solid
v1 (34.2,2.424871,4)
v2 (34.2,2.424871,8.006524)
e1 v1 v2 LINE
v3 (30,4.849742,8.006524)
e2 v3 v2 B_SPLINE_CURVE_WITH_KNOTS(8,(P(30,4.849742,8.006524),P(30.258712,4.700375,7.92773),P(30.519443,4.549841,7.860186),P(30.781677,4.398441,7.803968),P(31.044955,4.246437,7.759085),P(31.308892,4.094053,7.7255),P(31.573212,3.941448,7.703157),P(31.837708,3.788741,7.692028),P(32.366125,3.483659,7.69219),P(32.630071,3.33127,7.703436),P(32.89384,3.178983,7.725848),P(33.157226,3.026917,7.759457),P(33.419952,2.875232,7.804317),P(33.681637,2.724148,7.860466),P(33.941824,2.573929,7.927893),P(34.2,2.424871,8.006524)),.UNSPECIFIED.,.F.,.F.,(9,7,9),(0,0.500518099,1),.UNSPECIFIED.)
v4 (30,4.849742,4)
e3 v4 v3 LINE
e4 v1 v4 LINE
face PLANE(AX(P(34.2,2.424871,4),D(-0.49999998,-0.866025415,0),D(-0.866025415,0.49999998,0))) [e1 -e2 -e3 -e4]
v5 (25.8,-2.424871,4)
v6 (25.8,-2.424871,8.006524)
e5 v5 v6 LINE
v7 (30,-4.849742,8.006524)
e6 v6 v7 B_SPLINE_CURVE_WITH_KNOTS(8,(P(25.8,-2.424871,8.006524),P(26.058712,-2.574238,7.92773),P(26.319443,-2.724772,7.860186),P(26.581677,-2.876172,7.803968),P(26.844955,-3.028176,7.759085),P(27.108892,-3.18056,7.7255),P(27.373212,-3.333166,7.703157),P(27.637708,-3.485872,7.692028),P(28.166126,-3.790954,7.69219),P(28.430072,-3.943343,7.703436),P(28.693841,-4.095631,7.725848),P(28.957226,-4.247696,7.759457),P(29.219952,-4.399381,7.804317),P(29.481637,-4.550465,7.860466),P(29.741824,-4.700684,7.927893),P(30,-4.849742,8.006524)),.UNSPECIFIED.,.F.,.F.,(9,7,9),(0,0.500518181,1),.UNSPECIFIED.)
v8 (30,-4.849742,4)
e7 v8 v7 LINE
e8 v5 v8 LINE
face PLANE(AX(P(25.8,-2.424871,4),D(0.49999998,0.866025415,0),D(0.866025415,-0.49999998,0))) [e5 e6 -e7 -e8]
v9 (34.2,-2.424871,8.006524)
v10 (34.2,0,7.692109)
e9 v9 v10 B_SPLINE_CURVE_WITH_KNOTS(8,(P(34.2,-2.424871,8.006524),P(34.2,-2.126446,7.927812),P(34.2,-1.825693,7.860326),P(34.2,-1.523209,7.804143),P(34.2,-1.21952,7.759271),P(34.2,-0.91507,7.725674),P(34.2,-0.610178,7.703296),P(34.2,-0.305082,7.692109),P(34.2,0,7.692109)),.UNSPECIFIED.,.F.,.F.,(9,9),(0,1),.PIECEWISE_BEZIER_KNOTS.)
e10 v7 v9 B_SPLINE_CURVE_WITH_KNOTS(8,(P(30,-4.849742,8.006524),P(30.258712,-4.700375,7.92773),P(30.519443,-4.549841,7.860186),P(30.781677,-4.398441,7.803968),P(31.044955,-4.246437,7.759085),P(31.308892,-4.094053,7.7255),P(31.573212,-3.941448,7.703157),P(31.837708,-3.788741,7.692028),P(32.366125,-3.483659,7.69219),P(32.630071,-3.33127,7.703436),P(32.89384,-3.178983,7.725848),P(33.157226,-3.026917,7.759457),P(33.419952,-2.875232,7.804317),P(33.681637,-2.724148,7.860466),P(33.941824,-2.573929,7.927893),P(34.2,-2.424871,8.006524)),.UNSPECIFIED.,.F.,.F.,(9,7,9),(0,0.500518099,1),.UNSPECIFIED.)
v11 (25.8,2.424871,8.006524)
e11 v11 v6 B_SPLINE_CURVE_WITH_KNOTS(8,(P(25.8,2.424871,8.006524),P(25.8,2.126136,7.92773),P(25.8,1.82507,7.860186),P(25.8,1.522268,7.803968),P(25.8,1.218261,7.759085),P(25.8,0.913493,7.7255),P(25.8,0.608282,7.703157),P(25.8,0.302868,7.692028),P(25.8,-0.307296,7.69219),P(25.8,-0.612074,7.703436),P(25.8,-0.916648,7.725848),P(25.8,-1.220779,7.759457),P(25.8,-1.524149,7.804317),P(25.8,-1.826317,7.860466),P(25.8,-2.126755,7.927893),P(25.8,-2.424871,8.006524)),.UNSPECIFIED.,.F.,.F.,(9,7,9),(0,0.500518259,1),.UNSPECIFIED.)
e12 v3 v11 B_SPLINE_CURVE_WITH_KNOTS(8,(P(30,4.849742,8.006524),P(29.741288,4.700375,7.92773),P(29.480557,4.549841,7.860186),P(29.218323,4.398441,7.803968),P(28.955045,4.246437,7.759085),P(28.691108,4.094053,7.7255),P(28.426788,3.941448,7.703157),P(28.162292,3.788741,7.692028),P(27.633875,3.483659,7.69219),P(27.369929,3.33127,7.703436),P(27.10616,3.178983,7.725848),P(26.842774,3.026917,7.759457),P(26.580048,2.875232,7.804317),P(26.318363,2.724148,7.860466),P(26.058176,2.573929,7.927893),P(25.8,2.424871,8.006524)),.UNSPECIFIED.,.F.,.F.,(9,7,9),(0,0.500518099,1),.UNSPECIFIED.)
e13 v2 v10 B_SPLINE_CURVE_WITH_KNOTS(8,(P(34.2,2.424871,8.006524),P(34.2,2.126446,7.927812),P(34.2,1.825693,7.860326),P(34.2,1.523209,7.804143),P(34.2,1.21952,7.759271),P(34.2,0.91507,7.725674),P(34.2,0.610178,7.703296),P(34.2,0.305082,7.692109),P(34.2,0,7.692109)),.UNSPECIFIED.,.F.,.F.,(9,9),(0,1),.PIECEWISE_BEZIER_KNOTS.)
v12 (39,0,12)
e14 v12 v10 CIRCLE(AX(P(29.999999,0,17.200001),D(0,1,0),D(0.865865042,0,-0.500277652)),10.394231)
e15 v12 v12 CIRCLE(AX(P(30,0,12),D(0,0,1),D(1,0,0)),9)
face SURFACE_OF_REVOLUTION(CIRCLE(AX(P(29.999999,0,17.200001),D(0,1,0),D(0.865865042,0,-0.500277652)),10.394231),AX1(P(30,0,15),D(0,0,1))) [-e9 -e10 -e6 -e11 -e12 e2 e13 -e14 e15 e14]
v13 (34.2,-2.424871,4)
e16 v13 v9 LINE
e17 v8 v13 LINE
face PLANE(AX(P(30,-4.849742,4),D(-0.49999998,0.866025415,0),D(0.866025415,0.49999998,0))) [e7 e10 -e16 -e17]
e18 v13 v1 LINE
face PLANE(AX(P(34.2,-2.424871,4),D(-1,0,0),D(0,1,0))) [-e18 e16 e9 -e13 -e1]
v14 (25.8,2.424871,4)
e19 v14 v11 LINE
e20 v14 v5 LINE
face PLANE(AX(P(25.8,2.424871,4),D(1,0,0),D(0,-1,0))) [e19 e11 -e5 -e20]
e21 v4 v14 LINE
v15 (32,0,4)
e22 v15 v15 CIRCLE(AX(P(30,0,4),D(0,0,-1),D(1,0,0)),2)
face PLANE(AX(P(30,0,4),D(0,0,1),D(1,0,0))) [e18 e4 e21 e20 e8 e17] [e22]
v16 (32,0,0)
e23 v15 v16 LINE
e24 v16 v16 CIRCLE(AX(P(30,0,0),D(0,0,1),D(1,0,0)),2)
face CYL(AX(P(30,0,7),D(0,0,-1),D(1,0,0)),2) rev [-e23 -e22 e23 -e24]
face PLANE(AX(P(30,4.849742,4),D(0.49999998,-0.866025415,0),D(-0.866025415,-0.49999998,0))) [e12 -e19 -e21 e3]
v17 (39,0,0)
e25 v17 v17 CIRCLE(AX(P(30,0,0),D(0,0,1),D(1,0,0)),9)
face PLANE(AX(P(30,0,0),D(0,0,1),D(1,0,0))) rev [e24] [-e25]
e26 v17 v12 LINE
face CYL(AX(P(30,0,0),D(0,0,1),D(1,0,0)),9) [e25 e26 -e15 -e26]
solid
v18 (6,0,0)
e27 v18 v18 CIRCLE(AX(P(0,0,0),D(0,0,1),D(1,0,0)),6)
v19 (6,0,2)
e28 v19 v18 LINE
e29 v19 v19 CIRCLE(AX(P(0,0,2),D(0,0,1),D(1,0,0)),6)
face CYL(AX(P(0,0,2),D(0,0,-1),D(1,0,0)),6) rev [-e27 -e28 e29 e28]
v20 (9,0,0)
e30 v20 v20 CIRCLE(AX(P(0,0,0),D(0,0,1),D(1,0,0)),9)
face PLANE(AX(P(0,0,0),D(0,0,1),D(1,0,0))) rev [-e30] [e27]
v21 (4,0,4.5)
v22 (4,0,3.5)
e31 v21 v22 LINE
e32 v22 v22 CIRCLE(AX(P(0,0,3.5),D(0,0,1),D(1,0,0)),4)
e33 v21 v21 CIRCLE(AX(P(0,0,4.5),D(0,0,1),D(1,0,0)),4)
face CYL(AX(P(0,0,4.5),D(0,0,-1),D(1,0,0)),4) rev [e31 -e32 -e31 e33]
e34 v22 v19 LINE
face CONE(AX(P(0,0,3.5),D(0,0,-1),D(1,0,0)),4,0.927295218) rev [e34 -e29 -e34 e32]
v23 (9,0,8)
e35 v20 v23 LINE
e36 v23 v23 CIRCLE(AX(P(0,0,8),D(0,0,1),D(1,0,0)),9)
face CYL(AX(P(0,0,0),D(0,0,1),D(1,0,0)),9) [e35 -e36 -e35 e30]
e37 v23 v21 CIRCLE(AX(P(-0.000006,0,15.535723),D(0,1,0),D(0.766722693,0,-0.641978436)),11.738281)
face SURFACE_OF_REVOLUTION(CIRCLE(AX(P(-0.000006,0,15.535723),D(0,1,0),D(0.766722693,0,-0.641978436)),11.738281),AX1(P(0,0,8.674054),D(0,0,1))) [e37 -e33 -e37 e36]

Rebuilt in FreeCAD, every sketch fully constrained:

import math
import FreeCAD as App
import Part
import Sketcher
Q = App.Units.Quantity


def add_polygon(sketch, points):
    """Adds a closed chain of lines whose ends are joined by coincident constraints."""
    first, n = sketch.GeometryCount, len(points)
    for a, b in zip(points, points[1:] + points[:1]):
        sketch.addGeometry(Part.LineSegment(App.Vector(*a, 0), App.Vector(*b, 0)), False)
    for i in range(n):
        sketch.addConstraint(Sketcher.Constraint("Coincident", first + i, 2, first + (i + 1) % n, 1))

doc = App.newDocument("Part")
body = doc.addObject("PartDesign::Body", "Body")

sketch1 = body.newObject("Sketcher::SketchObject", "Sketch")
sketch1.AttachmentSupport = (doc.getObject("XZ_Plane"), [""])
sketch1.MapMode = "FlatFace"
sketch1.addGeometry([
    Part.LineSegment(App.Vector(6, 2, 0), App.Vector(6, 0, 0)),
    Part.LineSegment(App.Vector(6, 0, 0), App.Vector(9, 0, 0)),
    Part.LineSegment(App.Vector(9, 0, 0), App.Vector(9, 8, 0)),
    Part.ArcOfCircle(Part.Circle(App.Vector(0, 15.5, 0), App.Vector(0, 0, 1), 11.7), math.radians(-70), math.radians(-40)),
    Part.LineSegment(App.Vector(4, 4.5, 0), App.Vector(4, 3.5, 0)),
    Part.LineSegment(App.Vector(4, 3.5, 0), App.Vector(6, 2, 0)),
], False)
sketch1.addConstraint([
    Sketcher.Constraint("Coincident", 0, 2, 1, 1),
    Sketcher.Constraint("Coincident", 1, 2, 2, 1),
    Sketcher.Constraint("Coincident", 2, 2, 3, 2),
    Sketcher.Constraint("Coincident", 3, 1, 4, 1),
    Sketcher.Constraint("Coincident", 4, 2, 5, 1),
    Sketcher.Constraint("Coincident", 5, 2, 0, 1),
    Sketcher.Constraint("Vertical", 0),
    Sketcher.Constraint("Horizontal", 1),
    Sketcher.Constraint("Vertical", 2),
    Sketcher.Constraint("Vertical", 4),
    Sketcher.Constraint("PointOnObject", 0, 2, -1),
    Sketcher.Constraint("DistanceX", 1, 1, 1, 2, Q("3 mm")),
    Sketcher.Constraint("DistanceY", 0, 2, 0, 1, Q("2 mm")),
    Sketcher.Constraint("DistanceY", 2, 1, 2, 2, Q("8 mm")),
    Sketcher.Constraint("DistanceY", 4, 2, 4, 1, Q("1 mm")),
    Sketcher.Constraint("DistanceX", -1, 1, 0, 2, Q("6 mm")),
    Sketcher.Constraint("DistanceX", -1, 1, 3, 1, Q("4 mm")),
    Sketcher.Constraint("Distance", 5, Q("2.5 mm")),
    Sketcher.Constraint("Radius", 3, Q("11.738281 mm")),
])
revolution = body.newObject("PartDesign::Revolution", "Revolution")
revolution.Profile = sketch1
revolution.ReferenceAxis = (sketch1, ["V_Axis"])
revolution.Angle = 360
body2 = doc.addObject("PartDesign::Body", "Body001")

sketch2 = body2.newObject("Sketcher::SketchObject", "Sketch001")
sketch2.AttachmentSupport = (doc.getObject("XZ_Plane001"), [""])
sketch2.MapMode = "FlatFace"
sketch2.addGeometry([
    Part.LineSegment(App.Vector(32, 7, 0), App.Vector(32, 0, 0)),
    Part.LineSegment(App.Vector(32, 0, 0), App.Vector(39, 0, 0)),
    Part.LineSegment(App.Vector(39, 0, 0), App.Vector(39, 12, 0)),
    Part.ArcOfCircle(Part.Circle(App.Vector(30, 17, 0), App.Vector(0, 0, 1), 10), math.radians(-79), math.radians(-30)),
], False)
sketch2.addGeometry(Part.LineSegment(App.Vector(30, 0, 0), App.Vector(30, 17, 0)), True)
sketch2.addConstraint([
    Sketcher.Constraint("Coincident", 0, 2, 1, 1),
    Sketcher.Constraint("Coincident", 1, 2, 2, 1),
    Sketcher.Constraint("Coincident", 2, 2, 3, 2),
    Sketcher.Constraint("Coincident", 3, 1, 0, 1),
    Sketcher.Constraint("Vertical", 0),
    Sketcher.Constraint("Horizontal", 1),
    Sketcher.Constraint("Vertical", 2),
    Sketcher.Constraint("Vertical", 4),
    Sketcher.Constraint("Coincident", 4, 2, 3, 3),
    Sketcher.Constraint("PointOnObject", 0, 2, -1),
    Sketcher.Constraint("PointOnObject", 4, 1, -1),
    Sketcher.Constraint("Equal", 1, 0),
    Sketcher.Constraint("DistanceX", 1, 1, 1, 2, Q("7 mm")),
    Sketcher.Constraint("DistanceY", 2, 1, 2, 2, Q("12 mm")),
    Sketcher.Constraint("DistanceY", 4, 1, 4, 2, Q("17.200001 mm")),
    Sketcher.Constraint("DistanceX", -1, 1, 3, 3, Q("29.999999 mm")),
])
revolution2 = body2.newObject("PartDesign::Revolution", "Revolution001")
revolution2.Profile = sketch2
revolution2.ReferenceAxis = (sketch2, ["Axis0"])
revolution2.Angle = 360
body3 = doc.addObject("PartDesign::Body", "Body002")

sketch3 = body3.newObject("Sketcher::SketchObject", "Sketch002")
sketch3.AttachmentSupport = (doc.getObject("XY_Plane002"), [""])
sketch3.MapMode = "FlatFace"
add_polygon(sketch3, [(34.2, -2.4), (34.2, 2.4), (30, 4.8), (25.8, 2.4), (25.8, -2.4), (30, -4.8)])
sketch3.addConstraint([
    Sketcher.Constraint("Vertical", 0),
    Sketcher.Constraint("Vertical", 3),
    Sketcher.Constraint("Symmetric", 1, 2, 4, 2, -1),
    Sketcher.Constraint("Parallel", 1, 4),
    Sketcher.Constraint("Parallel", 2, 5),
    Sketcher.Constraint("Horizontal", 0, 2, 2, 2),
    Sketcher.Constraint("Horizontal", 3, 2, 5, 2),
    Sketcher.Constraint("Angle", 1, Q("150.000001 deg")),
    Sketcher.Constraint("DistanceX", -1, 1, 1, 2, Q("30 mm")),
    Sketcher.Constraint("DistanceX", -1, 1, 0, 2, Q("34.2 mm")),
    Sketcher.Constraint("DistanceY", 0, 1, 0, 2, Q("4.849742 mm")),
])
pad1 = body3.newObject("PartDesign::Pad", "Pad")
pad1.Profile = sketch3
pad1.Length = 5
body4 = doc.addObject("PartDesign::Body", "Body003")
doc.recompute()

body3.Placement = App.Placement(App.Vector(0, 0, 4), App.Rotation(App.Vector(0, 0, 1), 0))
boolean = body4.newObject("PartDesign::Boolean", "Boolean")
boolean.Type = "Fuse"
boolean.addObjects([body3])
doc.recompute()

boolean2 = body2.newObject("PartDesign::Boolean", "Boolean001")
boolean2.Type = "Cut"
boolean2.addObjects([body4])

doc.recompute()
